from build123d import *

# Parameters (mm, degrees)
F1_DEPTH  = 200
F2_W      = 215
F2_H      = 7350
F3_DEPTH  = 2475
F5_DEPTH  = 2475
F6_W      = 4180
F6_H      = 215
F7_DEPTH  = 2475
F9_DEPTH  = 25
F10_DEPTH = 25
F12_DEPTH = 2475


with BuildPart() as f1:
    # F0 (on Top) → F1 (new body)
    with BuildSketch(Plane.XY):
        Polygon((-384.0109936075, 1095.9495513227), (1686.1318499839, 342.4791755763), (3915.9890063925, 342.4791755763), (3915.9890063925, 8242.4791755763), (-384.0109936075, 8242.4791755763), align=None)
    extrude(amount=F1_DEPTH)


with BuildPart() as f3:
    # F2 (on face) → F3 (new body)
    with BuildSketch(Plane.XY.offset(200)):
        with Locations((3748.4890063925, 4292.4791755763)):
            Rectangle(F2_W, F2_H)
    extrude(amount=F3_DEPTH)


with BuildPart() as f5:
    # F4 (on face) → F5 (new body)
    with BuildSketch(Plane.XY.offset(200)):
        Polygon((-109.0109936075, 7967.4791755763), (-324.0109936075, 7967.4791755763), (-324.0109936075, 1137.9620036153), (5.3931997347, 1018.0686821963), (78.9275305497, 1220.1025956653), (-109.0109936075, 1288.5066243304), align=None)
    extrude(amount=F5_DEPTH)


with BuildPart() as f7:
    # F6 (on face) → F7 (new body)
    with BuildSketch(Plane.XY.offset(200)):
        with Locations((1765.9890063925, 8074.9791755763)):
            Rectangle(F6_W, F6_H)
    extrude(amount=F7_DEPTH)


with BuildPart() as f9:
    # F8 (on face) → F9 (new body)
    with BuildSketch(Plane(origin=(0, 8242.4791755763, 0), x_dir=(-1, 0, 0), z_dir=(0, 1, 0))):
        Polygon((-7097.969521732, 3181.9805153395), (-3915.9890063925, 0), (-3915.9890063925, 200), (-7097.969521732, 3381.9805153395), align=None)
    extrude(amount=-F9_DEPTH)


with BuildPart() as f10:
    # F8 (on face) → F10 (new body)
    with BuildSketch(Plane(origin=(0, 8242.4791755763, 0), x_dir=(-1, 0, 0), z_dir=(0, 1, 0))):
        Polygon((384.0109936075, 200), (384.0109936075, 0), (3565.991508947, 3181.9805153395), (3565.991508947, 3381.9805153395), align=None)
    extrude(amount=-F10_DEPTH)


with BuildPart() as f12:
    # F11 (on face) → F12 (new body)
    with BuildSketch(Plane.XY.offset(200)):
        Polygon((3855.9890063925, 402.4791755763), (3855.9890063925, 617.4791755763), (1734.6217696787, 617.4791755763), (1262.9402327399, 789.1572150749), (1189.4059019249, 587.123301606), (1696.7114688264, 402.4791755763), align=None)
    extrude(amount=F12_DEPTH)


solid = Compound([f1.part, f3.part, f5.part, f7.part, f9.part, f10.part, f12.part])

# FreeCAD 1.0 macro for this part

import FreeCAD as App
import Part
import Sketcher
from FreeCAD import Vector
Q = App.Units.Quantity


def add_polygon(sketch, points):
    """Adds a closed chain of lines whose ends are joined by coincident constraints."""
    first, n = sketch.GeometryCount, len(points)
    for a, b in zip(points, points[1:] + points[:1]):
        sketch.addGeometry(Part.LineSegment(App.Vector(*a, 0), App.Vector(*b, 0)), False)
    for i in range(n):
        sketch.addConstraint(Sketcher.Constraint("Coincident", first + i, 2, first + (i + 1) % n, 1))

doc = App.newDocument("Part")
body = doc.addObject("PartDesign::Body", "Body")

# Sketch on XY plane
sketch1 = body.newObject("Sketcher::SketchObject", "Sketch")
sketch1.AttachmentSupport = (doc.getObject("XY_Plane"), [""])
sketch1.MapMode = "FlatFace"
add_polygon(sketch1, [(-384, 1096), (1686, 342), (3916, 342), (3916, 8242), (-384, 8242)])  # lines 0-4
sketch1.addConstraint([
    Sketcher.Constraint("Horizontal", 1),
    Sketcher.Constraint("Vertical", 2),
    Sketcher.Constraint("Horizontal", 3),
    Sketcher.Constraint("Vertical", 4),
    Sketcher.Constraint("DistanceX", 3, 2, 3, 1, 4300.0),
    Sketcher.Constraint("DistanceY", 2, 1, 2, 2, 7900.0),
    Sketcher.Constraint("Angle", 0, Q("-20 deg")),
    Sketcher.Constraint("Distance", 0, 2203.0),
    Sketcher.Constraint("DistanceX", -1, 1, 0, 2, 1686.13185),
    Sketcher.Constraint("DistanceY", -1, 1, 4, 2, 1095.949551),
])
pad1 = body.newObject("PartDesign::Pad", "Pad")
pad1.Profile = sketch1
pad1.Length = 200
body2 = doc.addObject("PartDesign::Body", "Body001")

# Sketch on XY plane
sketch2 = body2.newObject("Sketcher::SketchObject", "Sketch001")
sketch2.AttachmentSupport = (doc.getObject("XY_Plane001"), [""])
sketch2.MapMode = "FlatFace"
sketch2.AttachmentOffset = App.Placement(Vector(0, 0, 200), App.Rotation())
add_polygon(sketch2, [(3641, 7967), (3641, 617), (3856, 617), (3856, 7967)])  # lines 0-3
sketch2.addConstraint([
    Sketcher.Constraint("Vertical", 0),
    Sketcher.Constraint("Horizontal", 1),
    Sketcher.Constraint("Vertical", 2),
    Sketcher.Constraint("Horizontal", 3),
    Sketcher.Constraint("DistanceX", 1, 1, 1, 2, 215.0),
    Sketcher.Constraint("DistanceY", 0, 2, 0, 1, 7350.0),
    Sketcher.Constraint("DistanceX", -1, 1, 0, 2, 3640.989006),
    Sketcher.Constraint("DistanceY", -1, 1, 0, 2, 617.479176),
])
pad2 = body2.newObject("PartDesign::Pad", "Pad001")
pad2.Profile = sketch2
pad2.Length = 2475
body3 = doc.addObject("PartDesign::Body", "Body002")

# Sketch on XY plane
sketch3 = body3.newObject("Sketcher::SketchObject", "Sketch002")
sketch3.AttachmentSupport = (doc.getObject("XY_Plane002"), [""])
sketch3.MapMode = "FlatFace"
sketch3.AttachmentOffset = App.Placement(Vector(0, 0, 200), App.Rotation())
add_polygon(sketch3, [(-109, 7967), (-324, 7967), (-324, 1138), (5, 1018), (79, 1220), (-109, 1289)])  # lines 0-5
sketch3.addConstraint([
    Sketcher.Constraint("Horizontal", 0),
    Sketcher.Constraint("Vertical", 1),
    Sketcher.Constraint("Vertical", 5),
    Sketcher.Constraint("Perpendicular", 2, 3),
    Sketcher.Constraint("Perpendicular", 3, 4),
    Sketcher.Constraint("DistanceX", 0, 2, 0, 1, 215.0),
    Sketcher.Constraint("Angle", 2, Q("-20 deg")),
    Sketcher.Constraint("Distance", 3, 215.0),
    Sketcher.Constraint("Distance", 4, 200.0),
    Sketcher.Constraint("DistanceY", 1, 2, 1, 1, 6829.517172),
    Sketcher.Constraint("DistanceX", -1, 1, 2, 2, 5.3932),
    Sketcher.Constraint("DistanceY", -1, 1, 0, 2, 7967.479176),
])
pad3 = body3.newObject("PartDesign::Pad", "Pad002")
pad3.Profile = sketch3
pad3.Length = 2475
body4 = doc.addObject("PartDesign::Body", "Body003")

# Sketch on XY plane
sketch4 = body4.newObject("Sketcher::SketchObject", "Sketch003")
sketch4.AttachmentSupport = (doc.getObject("XY_Plane003"), [""])
sketch4.MapMode = "FlatFace"
sketch4.AttachmentOffset = App.Placement(Vector(0, 0, 200), App.Rotation())
add_polygon(sketch4, [(-324, 8182), (-324, 7967), (3856, 7967), (3856, 8182)])  # lines 0-3
sketch4.addConstraint([
    Sketcher.Constraint("Vertical", 0),
    Sketcher.Constraint("Horizontal", 1),
    Sketcher.Constraint("Vertical", 2),
    Sketcher.Constraint("Horizontal", 3),
    Sketcher.Constraint("DistanceX", 1, 1, 1, 2, 4180.0),
    Sketcher.Constraint("DistanceY", 0, 2, 0, 1, 215.0),
    Sketcher.Constraint("DistanceX", 0, 2, -1, 1, 324.010994),
    Sketcher.Constraint("DistanceY", -1, 1, 0, 2, 7967.479176),
])
pad4 = body4.newObject("PartDesign::Pad", "Pad003")
pad4.Profile = sketch4
pad4.Length = 2475
body5 = doc.addObject("PartDesign::Body", "Body004")

# Sketch on XZ plane
sketch5 = body5.newObject("Sketcher::SketchObject", "Sketch004")
sketch5.AttachmentSupport = (doc.getObject("XZ_Plane004"), [""])
sketch5.MapMode = "FlatFace"
sketch5.AttachmentOffset = App.Placement(Vector(0, 0, -8242.479176), App.Rotation())
add_polygon(sketch5, [(7098, 3182), (3916, 0), (3916, 200), (7098, 3382)])  # lines 0-3
sketch5.addConstraint([
    Sketcher.Constraint("Vertical", 1),
    Sketcher.Constraint("Vertical", 3),
    Sketcher.Constraint("PointOnObject", 0, 2, -1),
    Sketcher.Constraint("Parallel", 0, 2),
    Sketcher.Constraint("DistanceY", 1, 1, 1, 2, 200.0),
    Sketcher.Constraint("Angle", 0, Q("-135 deg")),
    Sketcher.Constraint("Distance", 0, 4500.0),
    Sketcher.Constraint("DistanceX", -1, 1, 2, 2, 7097.969522),
])
pad5 = body5.newObject("PartDesign::Pad", "Pad004")
pad5.Profile = sketch5
pad5.Length = 25
body6 = doc.addObject("PartDesign::Body", "Body005")

# Sketch on XZ plane
sketch6 = body6.newObject("Sketcher::SketchObject", "Sketch005")
sketch6.AttachmentSupport = (doc.getObject("XZ_Plane005"), [""])
sketch6.MapMode = "FlatFace"
sketch6.AttachmentOffset = App.Placement(Vector(0, 0, -8242.479176), App.Rotation())
add_polygon(sketch6, [(-384, 200), (-384, 0), (-3566, 3182), (-3566, 3382)])  # lines 0-3
sketch6.addConstraint([
    Sketcher.Constraint("Vertical", 0),
    Sketcher.Constraint("Vertical", 2),
    Sketcher.Constraint("PointOnObject", 0, 2, -1),
    Sketcher.Constraint("Parallel", 1, 3),
    Sketcher.Constraint("DistanceY", 0, 2, 0, 1, 200.0),
    Sketcher.Constraint("Angle", 1, Q("135 deg")),
    Sketcher.Constraint("Distance", 1, 4500.0),
    Sketcher.Constraint("DistanceX", 1, 2, -1, 1, 3565.991509),
])
pad6 = body6.newObject("PartDesign::Pad", "Pad005")
pad6.Profile = sketch6
pad6.Length = 25
body7 = doc.addObject("PartDesign::Body", "Body006")

# Sketch on XY plane
sketch7 = body7.newObject("Sketcher::SketchObject", "Sketch006")
sketch7.AttachmentSupport = (doc.getObject("XY_Plane006"), [""])
sketch7.MapMode = "FlatFace"
sketch7.AttachmentOffset = App.Placement(Vector(0, 0, 200), App.Rotation())
add_polygon(sketch7, [(3856, 402), (3856, 617), (1735, 617), (1263, 789), (1189, 587), (1697, 402)])  # lines 0-5
sketch7.addConstraint([
    Sketcher.Constraint("Vertical", 0),
    Sketcher.Constraint("Horizontal", 1),
    Sketcher.Constraint("Horizontal", 5),
    Sketcher.Constraint("Perpendicular", 2, 3),
    Sketcher.Constraint("Perpendicular", 3, 4),
    Sketcher.Constraint("DistanceY", 0, 1, 0, 2, 215.0),
    Sketcher.Constraint("Angle", 2, Q("160 deg")),
    Sketcher.Constraint("Distance", 3, 215.0),
    Sketcher.Constraint("DistanceX", -1, 1, 3, 2, 1189.405902),
    Sketcher.Constraint("DistanceY", -1, 1, 3, 2, 587.123302),
    Sketcher.Constraint("Distance", 4, 539.863308),
    Sketcher.Constraint("DistanceX", 1, 2, 1, 1, 2121.367237),
])
pad7 = body7.newObject("PartDesign::Pad", "Pad006")
pad7.Profile = sketch7
pad7.Length = 2475

doc.recompute()
